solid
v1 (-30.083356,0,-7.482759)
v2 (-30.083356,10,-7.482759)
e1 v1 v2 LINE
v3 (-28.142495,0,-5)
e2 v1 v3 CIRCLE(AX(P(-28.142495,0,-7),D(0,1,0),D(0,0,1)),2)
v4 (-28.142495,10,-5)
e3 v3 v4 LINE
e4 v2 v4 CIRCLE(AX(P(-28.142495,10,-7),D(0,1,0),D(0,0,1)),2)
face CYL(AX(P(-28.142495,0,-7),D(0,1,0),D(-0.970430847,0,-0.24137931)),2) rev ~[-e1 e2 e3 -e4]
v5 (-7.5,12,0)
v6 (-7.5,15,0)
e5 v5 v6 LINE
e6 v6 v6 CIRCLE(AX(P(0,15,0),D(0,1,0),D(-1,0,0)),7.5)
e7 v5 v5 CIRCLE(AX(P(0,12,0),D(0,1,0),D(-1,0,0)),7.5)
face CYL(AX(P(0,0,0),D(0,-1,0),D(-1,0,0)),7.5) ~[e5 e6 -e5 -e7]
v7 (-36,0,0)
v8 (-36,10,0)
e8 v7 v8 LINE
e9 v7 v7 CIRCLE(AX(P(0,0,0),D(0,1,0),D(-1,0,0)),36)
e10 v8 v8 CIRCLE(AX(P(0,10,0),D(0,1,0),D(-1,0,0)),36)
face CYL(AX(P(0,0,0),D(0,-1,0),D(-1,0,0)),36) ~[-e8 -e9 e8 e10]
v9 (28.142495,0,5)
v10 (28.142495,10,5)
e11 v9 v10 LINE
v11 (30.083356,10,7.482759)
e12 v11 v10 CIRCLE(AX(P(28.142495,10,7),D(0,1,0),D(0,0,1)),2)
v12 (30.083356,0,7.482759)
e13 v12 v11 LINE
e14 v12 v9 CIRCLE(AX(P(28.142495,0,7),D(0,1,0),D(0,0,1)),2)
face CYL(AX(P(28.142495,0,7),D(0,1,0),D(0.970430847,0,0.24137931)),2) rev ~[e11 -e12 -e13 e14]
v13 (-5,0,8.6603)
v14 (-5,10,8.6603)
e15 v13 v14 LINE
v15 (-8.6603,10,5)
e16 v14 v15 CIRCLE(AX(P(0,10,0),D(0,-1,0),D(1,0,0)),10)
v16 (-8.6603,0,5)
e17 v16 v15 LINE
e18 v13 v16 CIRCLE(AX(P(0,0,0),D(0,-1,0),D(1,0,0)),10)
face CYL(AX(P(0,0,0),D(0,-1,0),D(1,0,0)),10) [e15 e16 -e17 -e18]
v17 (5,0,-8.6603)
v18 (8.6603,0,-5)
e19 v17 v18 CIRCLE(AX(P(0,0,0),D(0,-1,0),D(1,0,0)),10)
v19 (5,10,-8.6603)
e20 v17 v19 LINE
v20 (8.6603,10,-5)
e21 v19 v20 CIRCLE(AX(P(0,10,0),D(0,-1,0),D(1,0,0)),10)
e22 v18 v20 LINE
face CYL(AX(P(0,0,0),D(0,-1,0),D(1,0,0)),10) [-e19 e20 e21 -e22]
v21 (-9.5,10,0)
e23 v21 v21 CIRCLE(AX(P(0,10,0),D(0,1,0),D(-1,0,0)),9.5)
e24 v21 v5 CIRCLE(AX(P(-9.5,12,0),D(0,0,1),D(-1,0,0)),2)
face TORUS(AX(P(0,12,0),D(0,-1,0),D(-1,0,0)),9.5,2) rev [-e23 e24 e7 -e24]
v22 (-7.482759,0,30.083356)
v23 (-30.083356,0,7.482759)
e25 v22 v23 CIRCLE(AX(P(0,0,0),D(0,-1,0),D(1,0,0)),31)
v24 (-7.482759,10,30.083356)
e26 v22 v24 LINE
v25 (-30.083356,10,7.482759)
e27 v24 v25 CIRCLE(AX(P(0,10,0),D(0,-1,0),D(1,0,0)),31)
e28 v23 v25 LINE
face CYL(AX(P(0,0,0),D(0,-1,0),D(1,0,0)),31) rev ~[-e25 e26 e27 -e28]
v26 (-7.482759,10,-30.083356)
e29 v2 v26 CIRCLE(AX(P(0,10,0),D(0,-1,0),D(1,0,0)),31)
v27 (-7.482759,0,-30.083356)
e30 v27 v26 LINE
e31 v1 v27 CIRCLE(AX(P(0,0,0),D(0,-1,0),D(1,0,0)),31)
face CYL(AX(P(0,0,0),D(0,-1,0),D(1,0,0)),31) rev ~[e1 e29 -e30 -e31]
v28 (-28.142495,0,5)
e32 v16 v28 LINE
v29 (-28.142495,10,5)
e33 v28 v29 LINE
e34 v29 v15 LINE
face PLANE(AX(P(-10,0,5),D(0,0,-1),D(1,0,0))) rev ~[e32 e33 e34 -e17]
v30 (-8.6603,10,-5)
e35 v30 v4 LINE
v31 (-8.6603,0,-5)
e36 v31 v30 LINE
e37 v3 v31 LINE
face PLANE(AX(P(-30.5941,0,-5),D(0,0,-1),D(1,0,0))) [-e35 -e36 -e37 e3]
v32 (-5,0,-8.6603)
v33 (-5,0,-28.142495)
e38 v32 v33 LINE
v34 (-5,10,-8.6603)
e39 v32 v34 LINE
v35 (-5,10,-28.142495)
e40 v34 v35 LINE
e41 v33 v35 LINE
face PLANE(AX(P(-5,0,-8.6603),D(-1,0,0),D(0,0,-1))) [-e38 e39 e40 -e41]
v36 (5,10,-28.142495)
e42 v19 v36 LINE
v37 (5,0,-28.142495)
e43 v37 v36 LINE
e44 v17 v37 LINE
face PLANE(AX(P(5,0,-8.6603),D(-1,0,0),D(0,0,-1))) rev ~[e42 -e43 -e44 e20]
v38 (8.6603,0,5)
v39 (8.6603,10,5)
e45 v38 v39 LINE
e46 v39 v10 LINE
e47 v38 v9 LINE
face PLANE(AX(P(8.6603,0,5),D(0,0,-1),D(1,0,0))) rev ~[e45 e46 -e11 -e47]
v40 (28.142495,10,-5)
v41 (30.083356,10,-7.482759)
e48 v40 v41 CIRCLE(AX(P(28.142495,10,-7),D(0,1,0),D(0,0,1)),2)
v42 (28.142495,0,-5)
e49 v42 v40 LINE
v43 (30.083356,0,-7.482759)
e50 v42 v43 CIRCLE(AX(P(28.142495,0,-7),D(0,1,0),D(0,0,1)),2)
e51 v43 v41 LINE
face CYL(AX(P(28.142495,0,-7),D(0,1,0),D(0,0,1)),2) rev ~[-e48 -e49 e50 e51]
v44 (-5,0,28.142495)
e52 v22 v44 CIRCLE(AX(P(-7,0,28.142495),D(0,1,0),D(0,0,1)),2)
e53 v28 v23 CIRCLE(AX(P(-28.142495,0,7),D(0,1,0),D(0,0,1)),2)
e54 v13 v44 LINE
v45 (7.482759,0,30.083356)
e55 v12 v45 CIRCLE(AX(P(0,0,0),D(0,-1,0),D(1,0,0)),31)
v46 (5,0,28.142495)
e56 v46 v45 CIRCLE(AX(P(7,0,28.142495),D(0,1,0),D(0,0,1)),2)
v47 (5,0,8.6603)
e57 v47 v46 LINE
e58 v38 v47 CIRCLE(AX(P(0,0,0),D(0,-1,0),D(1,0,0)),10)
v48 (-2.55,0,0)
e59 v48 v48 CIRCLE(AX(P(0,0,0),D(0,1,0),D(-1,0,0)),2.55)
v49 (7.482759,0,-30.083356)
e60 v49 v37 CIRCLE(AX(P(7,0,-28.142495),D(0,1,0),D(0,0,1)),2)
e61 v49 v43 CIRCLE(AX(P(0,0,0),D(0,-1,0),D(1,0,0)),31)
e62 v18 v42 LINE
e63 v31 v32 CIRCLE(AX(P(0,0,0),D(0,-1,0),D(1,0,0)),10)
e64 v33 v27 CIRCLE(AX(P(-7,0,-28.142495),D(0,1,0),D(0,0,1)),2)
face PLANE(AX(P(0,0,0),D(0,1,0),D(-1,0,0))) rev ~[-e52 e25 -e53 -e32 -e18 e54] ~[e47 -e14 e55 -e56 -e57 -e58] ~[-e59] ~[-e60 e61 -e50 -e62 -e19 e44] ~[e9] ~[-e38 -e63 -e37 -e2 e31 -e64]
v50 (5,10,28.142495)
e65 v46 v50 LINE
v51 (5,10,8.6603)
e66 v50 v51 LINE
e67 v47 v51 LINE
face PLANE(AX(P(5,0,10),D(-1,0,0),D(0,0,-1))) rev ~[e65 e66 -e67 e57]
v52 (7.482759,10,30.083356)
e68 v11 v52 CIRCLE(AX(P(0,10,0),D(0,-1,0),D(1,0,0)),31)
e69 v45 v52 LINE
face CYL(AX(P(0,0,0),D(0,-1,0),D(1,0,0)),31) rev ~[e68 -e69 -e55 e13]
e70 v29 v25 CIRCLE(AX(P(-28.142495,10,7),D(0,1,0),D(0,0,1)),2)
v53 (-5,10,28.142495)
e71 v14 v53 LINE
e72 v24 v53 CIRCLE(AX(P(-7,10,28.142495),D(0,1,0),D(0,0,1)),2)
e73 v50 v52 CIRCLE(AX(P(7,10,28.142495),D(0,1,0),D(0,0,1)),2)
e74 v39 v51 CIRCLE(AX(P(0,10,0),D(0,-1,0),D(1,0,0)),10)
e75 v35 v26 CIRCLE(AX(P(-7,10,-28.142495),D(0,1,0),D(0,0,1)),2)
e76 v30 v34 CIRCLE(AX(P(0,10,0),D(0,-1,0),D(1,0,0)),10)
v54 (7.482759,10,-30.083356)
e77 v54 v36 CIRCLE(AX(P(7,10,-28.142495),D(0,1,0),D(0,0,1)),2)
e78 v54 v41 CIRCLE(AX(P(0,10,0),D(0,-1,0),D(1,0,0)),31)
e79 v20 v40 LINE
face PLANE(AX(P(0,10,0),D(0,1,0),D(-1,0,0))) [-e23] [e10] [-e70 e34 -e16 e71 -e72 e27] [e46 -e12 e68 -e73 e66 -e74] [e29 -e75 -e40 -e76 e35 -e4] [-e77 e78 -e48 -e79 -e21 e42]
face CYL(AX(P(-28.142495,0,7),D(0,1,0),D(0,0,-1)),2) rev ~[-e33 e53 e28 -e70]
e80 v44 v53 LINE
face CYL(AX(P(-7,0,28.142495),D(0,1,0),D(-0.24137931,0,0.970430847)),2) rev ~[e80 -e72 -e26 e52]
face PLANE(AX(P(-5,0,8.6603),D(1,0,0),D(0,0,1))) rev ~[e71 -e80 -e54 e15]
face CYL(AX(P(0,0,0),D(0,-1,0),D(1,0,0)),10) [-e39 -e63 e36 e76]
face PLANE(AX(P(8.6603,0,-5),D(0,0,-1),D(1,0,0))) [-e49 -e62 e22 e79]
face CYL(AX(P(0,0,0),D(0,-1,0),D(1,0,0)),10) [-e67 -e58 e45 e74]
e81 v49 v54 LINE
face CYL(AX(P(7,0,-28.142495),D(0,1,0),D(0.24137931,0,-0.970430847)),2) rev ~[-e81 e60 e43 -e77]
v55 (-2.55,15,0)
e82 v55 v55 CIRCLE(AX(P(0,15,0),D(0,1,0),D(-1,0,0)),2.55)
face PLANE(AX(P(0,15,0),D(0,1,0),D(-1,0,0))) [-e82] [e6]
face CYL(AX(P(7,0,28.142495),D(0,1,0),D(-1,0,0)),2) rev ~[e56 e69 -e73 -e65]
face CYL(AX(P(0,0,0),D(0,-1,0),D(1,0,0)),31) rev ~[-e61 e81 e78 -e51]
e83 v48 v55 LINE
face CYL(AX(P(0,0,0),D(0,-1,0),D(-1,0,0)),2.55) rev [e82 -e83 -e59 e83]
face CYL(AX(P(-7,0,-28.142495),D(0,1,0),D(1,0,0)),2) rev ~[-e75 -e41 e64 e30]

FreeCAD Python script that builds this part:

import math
import FreeCAD as App
import Part
import Sketcher
from FreeCAD import Vector


def edges_at(feature, points):
    """Names of the edges that pass closest to the given points."""
    edges = feature.Shape.Edges
    near = lambda p: min(range(len(edges)), key=lambda i: edges[i].distToShape(Part.Vertex(*p))[0])
    return sorted({f"Edge{near(p) + 1}" for p in points})

doc = App.newDocument("Part")
body = doc.addObject("PartDesign::Body", "Body")

sketch1 = body.newObject("Sketcher::SketchObject", "Sketch")
sketch1.AttachmentSupport = (doc.getObject("XZ_Plane"), [""])
sketch1.MapMode = "FlatFace"
sketch1.addGeometry(Part.Circle(Vector(0, 0, 0), Vector(0, 0, 1), 36), False)
sketch1.addGeometry(Part.Circle(Vector(0, 0, 0), Vector(0, 0, 1), 8), False)
sketch1.addConstraint(Sketcher.Constraint("Coincident", 0, 3, -1, 1))
sketch1.addConstraint(Sketcher.Constraint("Coincident", 1, 3, -1, 1))
sketch1.addConstraint(Sketcher.Constraint("Diameter", 0, 72.0))
sketch1.addConstraint(Sketcher.Constraint("Diameter", 1, 15.0))
pad1 = body.newObject("PartDesign::Pad", "Pad")
pad1.Profile = sketch1
pad1.Length = 10
pad1.Reversed = True

sketch2 = body.newObject("Sketcher::SketchObject", "Sketch001")
sketch2.AttachmentSupport = (doc.getObject("XZ_Plane"), [""])
sketch2.MapMode = "FlatFace"
sketch2.addGeometry(Part.Circle(Vector(0, 0, 0), Vector(0, 0, 1), 7.5), False)
sketch2.addGeometry(Part.Circle(Vector(0, 0, 0), Vector(0, 0, 1), 2.5), False)
sketch2.addConstraint(Sketcher.Constraint("Coincident", 0, 3, -1, 1))
sketch2.addConstraint(Sketcher.Constraint("Coincident", 1, 3, -1, 1))
sketch2.addConstraint(Sketcher.Constraint("Diameter", 0, 15.0))
sketch2.addConstraint(Sketcher.Constraint("Diameter", 1, 5.1))
pad2 = body.newObject("PartDesign::Pad", "Pad001")
pad2.Profile = sketch2
pad2.Length = 15
pad2.Reversed = True

sketch3 = body.newObject("Sketcher::SketchObject", "Sketch002")
sketch3.AttachmentSupport = (doc.getObject("XZ_Plane"), [""])
sketch3.MapMode = "FlatFace"
sketch3.addGeometry(Part.ArcOfCircle(Part.Circle(Vector(0, 0, 0), Vector(0, 0, 1), 10), math.radians(30), math.radians(60)), False)
sketch3.addGeometry(Part.LineSegment(Vector(9, 5, 0), Vector(31, 5, 0)), False)
sketch3.addGeometry(Part.ArcOfCircle(Part.Circle(Vector(0, 0, 0), Vector(0, 0, 1), 31), math.radians(9), math.radians(81)), False)
sketch3.addGeometry(Part.LineSegment(Vector(5, 31, 0), Vector(5, 9, 0)), False)
sketch3.addGeometry(Part.LineSegment(Vector(31, -5, 0), Vector(9, -5, 0)), False)
sketch3.addGeometry(Part.ArcOfCircle(Part.Circle(Vector(0, 0, 0), Vector(0, 0, 1), 10), math.radians(-60), math.radians(-30)), False)
sketch3.addGeometry(Part.LineSegment(Vector(5, -9, 0), Vector(5, -31, 0)), False)
sketch3.addGeometry(Part.ArcOfCircle(Part.Circle(Vector(0, 0, 0), Vector(0, 0, 1), 31), math.radians(-81), math.radians(-9)), False)
sketch3.addGeometry(Part.ArcOfCircle(Part.Circle(Vector(0, 0, 0), Vector(0, 0, 1), 10), math.radians(120), math.radians(150)), False)
sketch3.addGeometry(Part.LineSegment(Vector(-5, 9, 0), Vector(-5, 31, 0)), False)
sketch3.addGeometry(Part.ArcOfCircle(Part.Circle(Vector(0, 0, 0), Vector(0, 0, 1), 31), math.radians(99), math.radians(171)), False)
sketch3.addGeometry(Part.LineSegment(Vector(-31, 5, 0), Vector(-9, 5, 0)), False)
sketch3.addGeometry(Part.LineSegment(Vector(-5, -31, 0), Vector(-5, -9, 0)), False)
sketch3.addGeometry(Part.ArcOfCircle(Part.Circle(Vector(0, 0, 0), Vector(0, 0, 1), 10), math.radians(-150), math.radians(-120)), False)
sketch3.addGeometry(Part.LineSegment(Vector(-9, -5, 0), Vector(-31, -5, 0)), False)
sketch3.addGeometry(Part.ArcOfCircle(Part.Circle(Vector(0, 0, 0), Vector(0, 0, 1), 31), math.radians(-171), math.radians(-99)), False)
sketch3.addConstraint(Sketcher.Constraint("Coincident", 0, 1, 1, 1))
sketch3.addConstraint(Sketcher.Constraint("Coincident", 1, 2, 2, 1))
sketch3.addConstraint(Sketcher.Constraint("Coincident", 2, 2, 3, 1))
sketch3.addConstraint(Sketcher.Constraint("Coincident", 3, 2, 0, 2))
sketch3.addConstraint(Sketcher.Constraint("Coincident", 4, 2, 5, 2))
sketch3.addConstraint(Sketcher.Constraint("Coincident", 5, 1, 6, 1))
sketch3.addConstraint(Sketcher.Constraint("Coincident", 6, 2, 7, 1))
sketch3.addConstraint(Sketcher.Constraint("Coincident", 7, 2, 4, 1))
sketch3.addConstraint(Sketcher.Constraint("Coincident", 8, 1, 9, 1))
sketch3.addConstraint(Sketcher.Constraint("Coincident", 9, 2, 10, 1))
sketch3.addConstraint(Sketcher.Constraint("Coincident", 10, 2, 11, 1))
sketch3.addConstraint(Sketcher.Constraint("Coincident", 11, 2, 8, 2))
sketch3.addConstraint(Sketcher.Constraint("Coincident", 12, 2, 13, 2))
sketch3.addConstraint(Sketcher.Constraint("Coincident", 13, 1, 14, 1))
sketch3.addConstraint(Sketcher.Constraint("Coincident", 14, 2, 15, 1))
sketch3.addConstraint(Sketcher.Constraint("Coincident", 15, 2, 12, 1))
sketch3.addConstraint(Sketcher.Constraint("Horizontal", 1))
sketch3.addConstraint(Sketcher.Constraint("Vertical", 3))
sketch3.addConstraint(Sketcher.Constraint("Horizontal", 4))
sketch3.addConstraint(Sketcher.Constraint("Vertical", 6))
sketch3.addConstraint(Sketcher.Constraint("Vertical", 9))
sketch3.addConstraint(Sketcher.Constraint("Horizontal", 11))
sketch3.addConstraint(Sketcher.Constraint("Vertical", 12))
sketch3.addConstraint(Sketcher.Constraint("Horizontal", 14))
sketch3.addConstraint(Sketcher.Constraint("Coincident", 0, 3, -1, 1))
sketch3.addConstraint(Sketcher.Constraint("Coincident", 2, 3, -1, 1))
sketch3.addConstraint(Sketcher.Constraint("Coincident", 5, 3, -1, 1))
sketch3.addConstraint(Sketcher.Constraint("Coincident", 7, 3, -1, 1))
sketch3.addConstraint(Sketcher.Constraint("Coincident", 8, 3, -1, 1))
sketch3.addConstraint(Sketcher.Constraint("Coincident", 10, 3, -1, 1))
sketch3.addConstraint(Sketcher.Constraint("Coincident", 13, 3, -1, 1))
sketch3.addConstraint(Sketcher.Constraint("Coincident", 15, 3, -1, 1))
sketch3.addConstraint(Sketcher.Constraint("Equal", 0, 5))
sketch3.addConstraint(Sketcher.Constraint("Equal", 2, 7))
sketch3.addConstraint(Sketcher.Constraint("Equal", 5, 8))
sketch3.addConstraint(Sketcher.Constraint("Equal", 7, 10))
sketch3.addConstraint(Sketcher.Constraint("Equal", 8, 13))
sketch3.addConstraint(Sketcher.Constraint("Equal", 10, 15))
sketch3.addConstraint(Sketcher.Constraint("Horizontal", 3, 2, 8, 1))
sketch3.addConstraint(Sketcher.Constraint("Horizontal", 1, 2, 10, 2))
sketch3.addConstraint(Sketcher.Constraint("Horizontal", 5, 1, 12, 2))
sketch3.addConstraint(Sketcher.Constraint("Horizontal", 7, 2, 13, 1))
sketch3.addConstraint(Sketcher.Constraint("Vertical", 0, 1, 4, 2))
sketch3.addConstraint(Sketcher.Constraint("Vertical", 3, 2, 5, 1))
sketch3.addConstraint(Sketcher.Constraint("Equal", 14, 3))
sketch3.addConstraint(Sketcher.Constraint("Radius", 0, 10.0))
sketch3.addConstraint(Sketcher.Constraint("Radius", 2, 31.0))
sketch3.addConstraint(Sketcher.Constraint("DistanceY", -1, 1, 0, 1, 5.0))
pocket1 = body.newObject("PartDesign::Pocket", "Pocket")
pocket1.Profile = sketch3
pocket1.Length = 10
doc.recompute()

fillet = body.newObject("PartDesign::Fillet", "Fillet")
fillet.Base = (pocket1, edges_at(pocket1, [
    (-5, 5, -30.594),
    (-30.594, 5, -5),
    (-30.594, 5, 5),
    (-5, 5, 30.594),
    (5, 5, 30.594),
    (30.594, 5, 5),
    (30.594, 5, -5),
    (5, 5, -30.594),
]))
fillet.Radius = 2
doc.recompute()

fillet2 = body.newObject("PartDesign::Fillet", "Fillet001")
fillet2.Base = (fillet, edges_at(fillet, [(7.5, 10, 0)]))
fillet2.Radius = 2

doc.recompute()
